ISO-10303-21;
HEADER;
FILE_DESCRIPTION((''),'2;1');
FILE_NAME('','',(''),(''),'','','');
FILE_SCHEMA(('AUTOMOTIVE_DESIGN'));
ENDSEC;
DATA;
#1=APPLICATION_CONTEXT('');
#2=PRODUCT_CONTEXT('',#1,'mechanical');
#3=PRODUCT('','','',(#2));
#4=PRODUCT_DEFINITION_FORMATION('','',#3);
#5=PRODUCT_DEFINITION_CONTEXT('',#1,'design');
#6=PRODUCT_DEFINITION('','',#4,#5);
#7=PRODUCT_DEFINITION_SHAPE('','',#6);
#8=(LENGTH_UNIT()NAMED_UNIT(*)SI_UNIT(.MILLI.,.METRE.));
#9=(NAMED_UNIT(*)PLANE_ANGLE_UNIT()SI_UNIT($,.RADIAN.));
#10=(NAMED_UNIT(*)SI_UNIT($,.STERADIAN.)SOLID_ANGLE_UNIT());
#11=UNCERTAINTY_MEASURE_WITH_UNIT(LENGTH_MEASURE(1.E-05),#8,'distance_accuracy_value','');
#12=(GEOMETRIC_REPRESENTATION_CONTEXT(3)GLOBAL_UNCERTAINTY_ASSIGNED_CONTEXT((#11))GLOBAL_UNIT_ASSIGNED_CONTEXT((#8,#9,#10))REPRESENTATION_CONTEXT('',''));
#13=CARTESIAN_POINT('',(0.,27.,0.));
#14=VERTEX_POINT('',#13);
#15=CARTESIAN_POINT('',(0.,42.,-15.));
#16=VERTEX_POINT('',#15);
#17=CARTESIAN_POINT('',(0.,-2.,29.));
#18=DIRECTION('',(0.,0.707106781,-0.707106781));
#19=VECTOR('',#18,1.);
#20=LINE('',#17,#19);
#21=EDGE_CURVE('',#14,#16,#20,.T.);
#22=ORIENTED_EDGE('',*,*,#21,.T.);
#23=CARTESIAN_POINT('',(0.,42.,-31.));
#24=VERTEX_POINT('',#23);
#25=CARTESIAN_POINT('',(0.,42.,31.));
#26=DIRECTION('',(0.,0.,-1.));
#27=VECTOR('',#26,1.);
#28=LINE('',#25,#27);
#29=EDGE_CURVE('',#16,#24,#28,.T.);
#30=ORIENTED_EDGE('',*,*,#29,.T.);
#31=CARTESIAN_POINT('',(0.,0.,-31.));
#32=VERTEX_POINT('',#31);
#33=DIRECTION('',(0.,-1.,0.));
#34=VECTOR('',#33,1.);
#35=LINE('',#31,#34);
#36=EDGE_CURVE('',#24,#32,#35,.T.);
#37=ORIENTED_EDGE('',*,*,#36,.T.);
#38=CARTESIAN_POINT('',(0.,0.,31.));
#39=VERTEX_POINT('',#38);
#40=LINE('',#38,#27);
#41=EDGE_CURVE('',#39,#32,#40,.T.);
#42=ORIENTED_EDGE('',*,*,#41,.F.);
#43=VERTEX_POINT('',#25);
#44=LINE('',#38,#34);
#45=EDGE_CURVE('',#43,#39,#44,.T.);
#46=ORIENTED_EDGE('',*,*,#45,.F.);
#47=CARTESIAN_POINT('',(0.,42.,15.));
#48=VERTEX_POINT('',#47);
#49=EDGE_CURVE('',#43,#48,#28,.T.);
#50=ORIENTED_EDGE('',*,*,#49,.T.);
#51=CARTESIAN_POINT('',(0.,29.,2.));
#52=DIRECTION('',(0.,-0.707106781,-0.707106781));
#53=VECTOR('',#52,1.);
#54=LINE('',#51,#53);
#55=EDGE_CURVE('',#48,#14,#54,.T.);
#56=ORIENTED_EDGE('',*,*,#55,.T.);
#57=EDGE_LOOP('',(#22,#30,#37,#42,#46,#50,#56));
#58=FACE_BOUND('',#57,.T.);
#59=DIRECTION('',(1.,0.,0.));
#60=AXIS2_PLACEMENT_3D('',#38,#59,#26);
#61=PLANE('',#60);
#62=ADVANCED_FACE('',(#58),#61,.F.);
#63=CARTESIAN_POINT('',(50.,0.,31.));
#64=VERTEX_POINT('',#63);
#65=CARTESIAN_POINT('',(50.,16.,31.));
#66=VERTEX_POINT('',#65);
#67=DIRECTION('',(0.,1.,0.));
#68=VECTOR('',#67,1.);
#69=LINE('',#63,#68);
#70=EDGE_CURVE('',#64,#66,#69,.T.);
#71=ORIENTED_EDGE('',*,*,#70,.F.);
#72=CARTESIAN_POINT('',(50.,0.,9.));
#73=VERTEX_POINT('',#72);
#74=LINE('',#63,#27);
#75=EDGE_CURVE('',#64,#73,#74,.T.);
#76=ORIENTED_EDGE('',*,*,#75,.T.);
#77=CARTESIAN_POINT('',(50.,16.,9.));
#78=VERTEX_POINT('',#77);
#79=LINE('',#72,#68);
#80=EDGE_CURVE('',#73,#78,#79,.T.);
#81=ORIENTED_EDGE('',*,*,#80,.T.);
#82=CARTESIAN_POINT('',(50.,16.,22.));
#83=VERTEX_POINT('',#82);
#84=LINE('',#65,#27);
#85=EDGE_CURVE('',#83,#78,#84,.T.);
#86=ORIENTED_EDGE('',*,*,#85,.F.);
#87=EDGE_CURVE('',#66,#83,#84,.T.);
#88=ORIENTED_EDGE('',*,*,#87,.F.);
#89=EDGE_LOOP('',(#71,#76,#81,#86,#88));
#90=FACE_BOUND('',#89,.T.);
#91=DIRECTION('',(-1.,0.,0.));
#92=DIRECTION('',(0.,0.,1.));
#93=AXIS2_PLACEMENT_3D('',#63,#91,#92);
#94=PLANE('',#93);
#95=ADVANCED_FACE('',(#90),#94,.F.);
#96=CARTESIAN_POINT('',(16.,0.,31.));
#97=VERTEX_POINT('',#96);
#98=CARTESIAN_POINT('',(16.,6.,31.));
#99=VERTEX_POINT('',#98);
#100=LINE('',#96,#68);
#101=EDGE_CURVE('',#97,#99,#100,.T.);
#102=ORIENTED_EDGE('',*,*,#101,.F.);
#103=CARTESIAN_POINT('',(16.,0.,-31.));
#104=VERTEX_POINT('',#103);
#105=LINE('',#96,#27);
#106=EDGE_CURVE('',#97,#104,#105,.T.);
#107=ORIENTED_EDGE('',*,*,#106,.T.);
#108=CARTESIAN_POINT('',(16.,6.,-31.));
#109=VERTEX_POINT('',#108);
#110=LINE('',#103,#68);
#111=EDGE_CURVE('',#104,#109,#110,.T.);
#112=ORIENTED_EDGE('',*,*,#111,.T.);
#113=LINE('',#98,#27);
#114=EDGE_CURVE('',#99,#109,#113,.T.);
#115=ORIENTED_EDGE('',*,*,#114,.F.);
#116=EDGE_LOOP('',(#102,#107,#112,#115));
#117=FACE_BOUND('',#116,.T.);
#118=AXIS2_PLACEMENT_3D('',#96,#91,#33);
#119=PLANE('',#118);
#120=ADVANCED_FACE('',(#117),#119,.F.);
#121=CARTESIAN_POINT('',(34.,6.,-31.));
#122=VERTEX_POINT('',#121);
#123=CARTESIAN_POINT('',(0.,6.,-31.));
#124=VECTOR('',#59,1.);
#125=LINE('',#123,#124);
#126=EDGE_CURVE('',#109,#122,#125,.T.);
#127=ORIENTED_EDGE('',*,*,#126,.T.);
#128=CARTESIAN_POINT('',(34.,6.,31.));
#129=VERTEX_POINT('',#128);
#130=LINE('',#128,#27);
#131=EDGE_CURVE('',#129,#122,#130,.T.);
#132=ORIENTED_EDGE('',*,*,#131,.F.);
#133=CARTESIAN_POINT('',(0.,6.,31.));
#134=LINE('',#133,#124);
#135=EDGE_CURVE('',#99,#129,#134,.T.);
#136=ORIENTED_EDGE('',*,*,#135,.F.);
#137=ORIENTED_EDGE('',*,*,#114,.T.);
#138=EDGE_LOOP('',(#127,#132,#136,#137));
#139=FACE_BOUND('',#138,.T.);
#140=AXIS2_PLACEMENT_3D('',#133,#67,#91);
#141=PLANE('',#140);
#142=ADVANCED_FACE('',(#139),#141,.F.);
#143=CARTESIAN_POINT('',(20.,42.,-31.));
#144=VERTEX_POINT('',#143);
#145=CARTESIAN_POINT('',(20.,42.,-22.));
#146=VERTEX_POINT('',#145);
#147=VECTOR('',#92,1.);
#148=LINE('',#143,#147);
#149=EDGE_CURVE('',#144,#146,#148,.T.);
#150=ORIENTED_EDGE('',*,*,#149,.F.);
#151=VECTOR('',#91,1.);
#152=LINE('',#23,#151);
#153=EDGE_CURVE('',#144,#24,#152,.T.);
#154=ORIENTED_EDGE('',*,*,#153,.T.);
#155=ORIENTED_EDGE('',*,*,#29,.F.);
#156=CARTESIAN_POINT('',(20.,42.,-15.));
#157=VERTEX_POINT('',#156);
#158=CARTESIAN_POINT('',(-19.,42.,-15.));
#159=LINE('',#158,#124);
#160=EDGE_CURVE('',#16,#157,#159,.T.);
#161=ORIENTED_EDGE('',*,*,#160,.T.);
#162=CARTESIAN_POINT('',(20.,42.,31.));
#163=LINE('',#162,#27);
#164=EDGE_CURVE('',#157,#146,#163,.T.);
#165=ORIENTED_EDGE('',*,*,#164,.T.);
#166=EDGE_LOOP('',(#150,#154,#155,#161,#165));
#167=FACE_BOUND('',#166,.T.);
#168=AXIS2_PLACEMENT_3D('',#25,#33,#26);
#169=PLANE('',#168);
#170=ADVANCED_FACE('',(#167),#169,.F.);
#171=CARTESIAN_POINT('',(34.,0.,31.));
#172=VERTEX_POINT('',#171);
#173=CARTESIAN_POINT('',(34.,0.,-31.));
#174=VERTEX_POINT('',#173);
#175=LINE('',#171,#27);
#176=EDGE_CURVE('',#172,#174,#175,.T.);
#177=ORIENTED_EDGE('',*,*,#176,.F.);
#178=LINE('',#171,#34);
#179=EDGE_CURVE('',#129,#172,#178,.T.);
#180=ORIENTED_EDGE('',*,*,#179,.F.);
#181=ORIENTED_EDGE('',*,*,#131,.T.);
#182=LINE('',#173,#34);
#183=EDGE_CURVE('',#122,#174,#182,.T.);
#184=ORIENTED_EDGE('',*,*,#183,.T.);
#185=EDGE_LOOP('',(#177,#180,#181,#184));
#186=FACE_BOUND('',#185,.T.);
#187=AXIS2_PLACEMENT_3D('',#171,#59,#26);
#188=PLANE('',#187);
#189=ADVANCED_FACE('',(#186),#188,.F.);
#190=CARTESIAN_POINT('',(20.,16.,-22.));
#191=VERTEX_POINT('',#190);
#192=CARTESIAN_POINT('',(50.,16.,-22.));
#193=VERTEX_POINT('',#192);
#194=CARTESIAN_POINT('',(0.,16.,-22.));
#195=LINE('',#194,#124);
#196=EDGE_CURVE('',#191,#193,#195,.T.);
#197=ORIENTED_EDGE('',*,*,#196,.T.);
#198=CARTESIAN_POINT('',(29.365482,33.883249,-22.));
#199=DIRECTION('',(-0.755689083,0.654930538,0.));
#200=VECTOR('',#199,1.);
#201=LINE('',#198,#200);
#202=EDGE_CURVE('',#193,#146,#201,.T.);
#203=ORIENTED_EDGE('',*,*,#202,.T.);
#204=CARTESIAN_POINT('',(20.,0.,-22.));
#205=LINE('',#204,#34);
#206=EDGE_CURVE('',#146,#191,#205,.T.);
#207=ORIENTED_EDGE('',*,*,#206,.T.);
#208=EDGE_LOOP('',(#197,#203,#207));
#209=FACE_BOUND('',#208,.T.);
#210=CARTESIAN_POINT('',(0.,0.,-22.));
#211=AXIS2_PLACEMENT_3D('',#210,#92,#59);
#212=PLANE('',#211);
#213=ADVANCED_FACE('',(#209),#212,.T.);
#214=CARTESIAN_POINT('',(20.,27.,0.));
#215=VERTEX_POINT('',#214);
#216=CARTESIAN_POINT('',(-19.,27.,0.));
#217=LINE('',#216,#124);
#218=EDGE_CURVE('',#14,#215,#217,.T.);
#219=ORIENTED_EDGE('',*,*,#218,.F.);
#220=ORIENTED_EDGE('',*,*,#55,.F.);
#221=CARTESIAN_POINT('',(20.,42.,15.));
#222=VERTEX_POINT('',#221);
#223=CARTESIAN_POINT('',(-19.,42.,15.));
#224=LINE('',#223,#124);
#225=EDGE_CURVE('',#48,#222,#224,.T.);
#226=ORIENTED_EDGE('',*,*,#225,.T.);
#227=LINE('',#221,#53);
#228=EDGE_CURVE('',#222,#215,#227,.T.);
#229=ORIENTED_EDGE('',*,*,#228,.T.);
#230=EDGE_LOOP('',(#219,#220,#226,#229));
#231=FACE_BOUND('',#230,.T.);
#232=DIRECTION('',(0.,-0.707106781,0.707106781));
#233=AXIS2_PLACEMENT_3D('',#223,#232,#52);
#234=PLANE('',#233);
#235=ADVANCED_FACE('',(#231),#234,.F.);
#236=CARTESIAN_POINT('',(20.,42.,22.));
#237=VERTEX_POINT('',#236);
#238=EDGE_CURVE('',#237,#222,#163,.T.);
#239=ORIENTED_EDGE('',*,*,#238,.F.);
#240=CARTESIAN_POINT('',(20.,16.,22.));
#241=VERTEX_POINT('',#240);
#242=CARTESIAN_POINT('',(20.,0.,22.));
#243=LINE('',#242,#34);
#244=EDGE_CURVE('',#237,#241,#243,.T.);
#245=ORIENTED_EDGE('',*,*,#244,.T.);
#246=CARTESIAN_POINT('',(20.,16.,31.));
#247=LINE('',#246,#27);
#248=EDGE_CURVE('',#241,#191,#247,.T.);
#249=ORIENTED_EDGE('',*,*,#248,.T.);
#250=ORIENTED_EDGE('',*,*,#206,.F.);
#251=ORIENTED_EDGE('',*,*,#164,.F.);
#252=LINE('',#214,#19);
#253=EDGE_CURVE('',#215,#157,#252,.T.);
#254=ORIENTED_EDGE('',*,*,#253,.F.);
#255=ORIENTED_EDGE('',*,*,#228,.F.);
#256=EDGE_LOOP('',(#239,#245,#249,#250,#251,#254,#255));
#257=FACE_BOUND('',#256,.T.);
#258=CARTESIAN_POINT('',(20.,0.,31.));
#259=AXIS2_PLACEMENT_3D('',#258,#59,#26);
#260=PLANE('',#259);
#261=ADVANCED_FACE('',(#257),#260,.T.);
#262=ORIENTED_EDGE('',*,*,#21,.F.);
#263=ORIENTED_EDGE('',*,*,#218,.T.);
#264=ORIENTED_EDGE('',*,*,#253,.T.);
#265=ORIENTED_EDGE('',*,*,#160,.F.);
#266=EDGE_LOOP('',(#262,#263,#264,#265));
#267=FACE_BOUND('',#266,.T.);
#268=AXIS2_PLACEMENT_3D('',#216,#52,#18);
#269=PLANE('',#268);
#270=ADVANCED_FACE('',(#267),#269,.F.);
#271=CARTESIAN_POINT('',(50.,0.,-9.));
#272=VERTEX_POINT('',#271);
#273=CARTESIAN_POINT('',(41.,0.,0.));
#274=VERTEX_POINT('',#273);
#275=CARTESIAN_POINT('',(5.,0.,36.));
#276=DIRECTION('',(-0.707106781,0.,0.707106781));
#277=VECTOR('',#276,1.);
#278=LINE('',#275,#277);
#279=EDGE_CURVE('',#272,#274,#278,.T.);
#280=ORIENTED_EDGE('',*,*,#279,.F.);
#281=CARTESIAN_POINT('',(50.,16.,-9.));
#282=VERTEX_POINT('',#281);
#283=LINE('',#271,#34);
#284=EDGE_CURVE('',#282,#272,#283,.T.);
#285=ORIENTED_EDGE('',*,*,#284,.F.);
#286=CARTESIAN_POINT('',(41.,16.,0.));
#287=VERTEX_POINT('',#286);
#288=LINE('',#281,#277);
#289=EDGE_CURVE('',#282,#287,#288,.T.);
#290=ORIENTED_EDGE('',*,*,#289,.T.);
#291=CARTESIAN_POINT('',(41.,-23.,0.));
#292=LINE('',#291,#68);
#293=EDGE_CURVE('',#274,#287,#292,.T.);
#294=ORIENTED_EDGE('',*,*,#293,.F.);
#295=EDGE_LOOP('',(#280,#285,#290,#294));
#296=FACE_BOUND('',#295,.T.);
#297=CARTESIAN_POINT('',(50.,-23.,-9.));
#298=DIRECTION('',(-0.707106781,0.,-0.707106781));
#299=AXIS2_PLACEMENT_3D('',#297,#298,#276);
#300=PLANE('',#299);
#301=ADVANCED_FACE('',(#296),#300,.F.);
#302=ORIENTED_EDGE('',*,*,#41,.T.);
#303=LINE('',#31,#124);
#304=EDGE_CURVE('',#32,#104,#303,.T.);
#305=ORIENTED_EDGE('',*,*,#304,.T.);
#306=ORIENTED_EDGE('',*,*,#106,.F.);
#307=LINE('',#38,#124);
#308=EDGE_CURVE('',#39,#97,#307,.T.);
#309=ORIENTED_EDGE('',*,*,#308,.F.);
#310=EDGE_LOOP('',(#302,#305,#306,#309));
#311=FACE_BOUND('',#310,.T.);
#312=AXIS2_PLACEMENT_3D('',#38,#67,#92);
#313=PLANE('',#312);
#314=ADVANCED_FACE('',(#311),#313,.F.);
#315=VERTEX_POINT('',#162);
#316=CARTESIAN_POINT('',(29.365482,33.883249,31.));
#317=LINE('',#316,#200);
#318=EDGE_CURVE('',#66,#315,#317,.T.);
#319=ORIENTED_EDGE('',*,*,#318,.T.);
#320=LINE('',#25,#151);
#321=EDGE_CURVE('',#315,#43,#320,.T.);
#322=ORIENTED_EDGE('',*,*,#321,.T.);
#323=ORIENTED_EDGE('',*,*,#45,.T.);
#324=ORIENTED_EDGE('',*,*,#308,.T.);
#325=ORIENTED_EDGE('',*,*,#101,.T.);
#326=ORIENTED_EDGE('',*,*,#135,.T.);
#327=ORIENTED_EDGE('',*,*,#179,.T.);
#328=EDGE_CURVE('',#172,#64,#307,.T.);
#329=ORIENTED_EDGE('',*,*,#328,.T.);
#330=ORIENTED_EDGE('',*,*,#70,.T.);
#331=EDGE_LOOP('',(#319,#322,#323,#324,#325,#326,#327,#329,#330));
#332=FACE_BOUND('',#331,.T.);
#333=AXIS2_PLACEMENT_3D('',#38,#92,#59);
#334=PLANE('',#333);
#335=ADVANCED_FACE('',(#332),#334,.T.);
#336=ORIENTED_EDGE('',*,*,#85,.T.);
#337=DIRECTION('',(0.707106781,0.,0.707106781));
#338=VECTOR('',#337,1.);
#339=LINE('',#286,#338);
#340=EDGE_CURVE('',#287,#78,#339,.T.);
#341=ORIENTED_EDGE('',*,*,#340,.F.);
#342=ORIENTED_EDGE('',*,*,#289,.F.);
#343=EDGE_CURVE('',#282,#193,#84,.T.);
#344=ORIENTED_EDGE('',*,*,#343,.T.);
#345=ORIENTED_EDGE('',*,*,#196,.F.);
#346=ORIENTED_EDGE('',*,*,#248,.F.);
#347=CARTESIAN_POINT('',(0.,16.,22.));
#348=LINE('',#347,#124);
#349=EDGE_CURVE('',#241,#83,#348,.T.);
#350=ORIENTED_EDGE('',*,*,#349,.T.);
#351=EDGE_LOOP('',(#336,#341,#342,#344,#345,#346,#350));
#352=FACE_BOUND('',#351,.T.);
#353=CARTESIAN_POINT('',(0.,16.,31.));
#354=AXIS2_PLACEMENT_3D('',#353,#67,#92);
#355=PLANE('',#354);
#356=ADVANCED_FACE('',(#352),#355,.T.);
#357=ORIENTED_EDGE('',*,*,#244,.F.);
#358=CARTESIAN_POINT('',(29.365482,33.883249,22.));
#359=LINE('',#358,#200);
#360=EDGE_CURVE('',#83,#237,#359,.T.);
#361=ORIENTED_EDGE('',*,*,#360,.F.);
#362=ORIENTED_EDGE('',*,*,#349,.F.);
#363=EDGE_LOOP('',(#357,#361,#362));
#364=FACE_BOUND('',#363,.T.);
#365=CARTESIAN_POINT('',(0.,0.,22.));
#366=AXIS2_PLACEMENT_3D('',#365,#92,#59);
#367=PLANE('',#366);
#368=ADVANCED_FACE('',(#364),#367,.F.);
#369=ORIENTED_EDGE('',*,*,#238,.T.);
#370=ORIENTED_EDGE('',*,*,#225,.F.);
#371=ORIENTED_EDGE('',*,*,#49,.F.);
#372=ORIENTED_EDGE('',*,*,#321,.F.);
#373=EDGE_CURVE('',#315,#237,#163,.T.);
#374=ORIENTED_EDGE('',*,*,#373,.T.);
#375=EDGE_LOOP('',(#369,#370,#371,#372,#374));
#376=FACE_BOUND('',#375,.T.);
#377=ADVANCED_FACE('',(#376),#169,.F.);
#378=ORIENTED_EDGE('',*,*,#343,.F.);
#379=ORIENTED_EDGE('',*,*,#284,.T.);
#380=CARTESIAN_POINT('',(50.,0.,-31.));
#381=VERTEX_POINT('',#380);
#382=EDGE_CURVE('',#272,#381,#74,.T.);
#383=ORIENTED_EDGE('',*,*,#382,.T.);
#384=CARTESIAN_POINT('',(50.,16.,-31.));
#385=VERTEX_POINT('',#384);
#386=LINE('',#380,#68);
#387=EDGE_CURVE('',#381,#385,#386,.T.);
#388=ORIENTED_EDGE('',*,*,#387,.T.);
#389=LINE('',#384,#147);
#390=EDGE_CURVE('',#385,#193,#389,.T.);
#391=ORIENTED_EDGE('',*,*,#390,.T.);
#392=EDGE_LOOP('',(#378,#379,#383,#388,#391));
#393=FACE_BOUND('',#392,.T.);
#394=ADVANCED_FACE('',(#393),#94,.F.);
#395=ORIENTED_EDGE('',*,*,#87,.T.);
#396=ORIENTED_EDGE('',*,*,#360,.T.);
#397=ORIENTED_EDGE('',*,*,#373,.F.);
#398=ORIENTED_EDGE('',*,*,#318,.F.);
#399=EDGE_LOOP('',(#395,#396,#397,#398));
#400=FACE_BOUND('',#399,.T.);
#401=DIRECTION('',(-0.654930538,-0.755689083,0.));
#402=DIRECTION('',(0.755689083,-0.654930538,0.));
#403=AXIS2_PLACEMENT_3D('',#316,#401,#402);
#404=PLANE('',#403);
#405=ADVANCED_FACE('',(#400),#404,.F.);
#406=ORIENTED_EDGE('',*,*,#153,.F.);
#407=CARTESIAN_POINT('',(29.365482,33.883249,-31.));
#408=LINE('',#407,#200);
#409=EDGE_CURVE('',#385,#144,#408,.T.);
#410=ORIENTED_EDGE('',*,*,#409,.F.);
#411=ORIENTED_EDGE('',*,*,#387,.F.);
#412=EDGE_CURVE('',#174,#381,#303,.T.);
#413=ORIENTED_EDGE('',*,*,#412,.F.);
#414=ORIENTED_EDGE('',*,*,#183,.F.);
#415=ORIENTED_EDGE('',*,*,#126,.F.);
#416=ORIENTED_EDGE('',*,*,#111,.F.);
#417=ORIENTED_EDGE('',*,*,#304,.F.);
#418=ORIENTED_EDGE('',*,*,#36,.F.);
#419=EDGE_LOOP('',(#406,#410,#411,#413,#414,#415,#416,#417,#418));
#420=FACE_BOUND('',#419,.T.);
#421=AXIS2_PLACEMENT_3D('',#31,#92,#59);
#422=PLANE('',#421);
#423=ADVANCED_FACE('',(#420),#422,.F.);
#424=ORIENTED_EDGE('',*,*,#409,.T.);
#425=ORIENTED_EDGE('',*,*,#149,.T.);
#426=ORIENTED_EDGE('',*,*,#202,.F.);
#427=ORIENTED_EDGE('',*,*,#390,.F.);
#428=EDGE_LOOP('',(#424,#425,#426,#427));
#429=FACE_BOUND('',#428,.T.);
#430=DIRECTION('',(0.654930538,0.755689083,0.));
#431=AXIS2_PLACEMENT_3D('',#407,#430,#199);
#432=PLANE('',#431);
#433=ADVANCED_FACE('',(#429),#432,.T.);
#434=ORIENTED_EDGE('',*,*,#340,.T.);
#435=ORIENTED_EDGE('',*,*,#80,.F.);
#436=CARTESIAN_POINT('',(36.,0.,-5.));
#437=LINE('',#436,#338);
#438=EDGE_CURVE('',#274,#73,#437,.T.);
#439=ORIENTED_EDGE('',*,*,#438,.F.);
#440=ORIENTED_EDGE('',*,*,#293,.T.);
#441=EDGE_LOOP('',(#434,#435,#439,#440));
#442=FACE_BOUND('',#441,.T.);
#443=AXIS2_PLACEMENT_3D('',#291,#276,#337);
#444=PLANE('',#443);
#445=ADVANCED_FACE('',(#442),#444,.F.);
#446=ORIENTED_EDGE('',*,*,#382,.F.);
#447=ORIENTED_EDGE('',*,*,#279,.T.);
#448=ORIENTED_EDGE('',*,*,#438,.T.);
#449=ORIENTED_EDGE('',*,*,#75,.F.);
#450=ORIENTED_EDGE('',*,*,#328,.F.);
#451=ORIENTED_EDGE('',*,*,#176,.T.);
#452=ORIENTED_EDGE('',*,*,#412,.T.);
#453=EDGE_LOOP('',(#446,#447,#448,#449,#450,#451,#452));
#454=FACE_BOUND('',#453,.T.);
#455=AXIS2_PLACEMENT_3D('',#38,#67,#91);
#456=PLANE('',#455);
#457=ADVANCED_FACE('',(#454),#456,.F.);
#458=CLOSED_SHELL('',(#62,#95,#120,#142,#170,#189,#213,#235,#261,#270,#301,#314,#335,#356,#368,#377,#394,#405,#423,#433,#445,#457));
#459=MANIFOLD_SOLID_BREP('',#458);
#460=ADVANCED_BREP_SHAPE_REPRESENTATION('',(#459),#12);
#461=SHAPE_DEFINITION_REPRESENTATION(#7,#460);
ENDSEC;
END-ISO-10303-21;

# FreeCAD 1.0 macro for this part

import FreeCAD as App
import Part
import Sketcher
from FreeCAD import Vector


def add_polygon(sketch, points):
    """Adds a closed chain of lines whose ends are joined by coincident constraints."""
    first, n = sketch.GeometryCount, len(points)
    for a, b in zip(points, points[1:] + points[:1]):
        sketch.addGeometry(Part.LineSegment(App.Vector(*a, 0), App.Vector(*b, 0)), False)
    for i in range(n):
        sketch.addConstraint(Sketcher.Constraint("Coincident", first + i, 2, first + (i + 1) % n, 1))

doc = App.newDocument("Part")
body = doc.addObject("PartDesign::Body", "Body")

# Sketch on XY plane
sketch1 = body.newObject("Sketcher::SketchObject", "Sketch")
sketch1.AttachmentSupport = (doc.getObject("XY_Plane"), [""])
sketch1.MapMode = "FlatFace"
add_polygon(sketch1, [(50, 16), (20, 16), (20, 42), (0, 42), (0, 0), (16, 0), (16, 6), (34, 6), (34, 0), (50, 0)])  # lines 0-9
sketch1.addConstraint([
    Sketcher.Constraint("Horizontal", 0),
    Sketcher.Constraint("Vertical", 1),
    Sketcher.Constraint("Horizontal", 2),
    Sketcher.Constraint("Vertical", 3),
    Sketcher.Constraint("Horizontal", 4),
    Sketcher.Constraint("Vertical", 5),
    Sketcher.Constraint("Horizontal", 6),
    Sketcher.Constraint("Vertical", 7),
    Sketcher.Constraint("Horizontal", 8),
    Sketcher.Constraint("Vertical", 9),
    Sketcher.Constraint("Coincident", 3, 2, -1, 1),
    Sketcher.Constraint("PointOnObject", 7, 2, -1),
    Sketcher.Constraint("Equal", 4, 8),
    Sketcher.Constraint("Equal", 8, 9),
    Sketcher.Constraint("DistanceX", 0, 2, 0, 1, 30.0),
    Sketcher.Constraint("DistanceX", 2, 2, 2, 1, 20.0),
    Sketcher.Constraint("DistanceX", 4, 1, 4, 2, 16.0),
    Sketcher.Constraint("DistanceY", 1, 1, 1, 2, 26.0),
    Sketcher.Constraint("DistanceY", 5, 1, 5, 2, 6.0),
])
pad1 = body.newObject("PartDesign::Pad", "Pad")
pad1.Profile = sketch1
pad1.Length = 62
pad1.Midplane = True

# Sketch on XY plane
sketch2 = body.newObject("Sketcher::SketchObject", "Sketch001")
sketch2.AttachmentSupport = (doc.getObject("XY_Plane"), [""])
sketch2.MapMode = "FlatFace"
sketch2.AttachmentOffset = App.Placement(Vector(0, 0, 22), App.Rotation())
add_polygon(sketch2, [(20, 42), (20, 16), (50, 16)])  # lines 0-2
sketch2.addConstraint([
    Sketcher.Constraint("Vertical", 0),
    Sketcher.Constraint("Horizontal", 1),
    Sketcher.Constraint("DistanceX", 1, 1, 1, 2, 30.0),
    Sketcher.Constraint("DistanceY", 0, 2, 0, 1, 26.0),
    Sketcher.Constraint("DistanceX", -1, 1, 0, 2, 20.0),
    Sketcher.Constraint("DistanceY", -1, 1, 0, 2, 16.0),
])
pad2 = body.newObject("PartDesign::Pad", "Pad001")
pad2.Profile = sketch2
pad2.Length = 9

# Sketch on XY plane
sketch3 = body.newObject("Sketcher::SketchObject", "Sketch002")
sketch3.AttachmentSupport = (doc.getObject("XY_Plane"), [""])
sketch3.MapMode = "FlatFace"
sketch3.AttachmentOffset = App.Placement(Vector(0, 0, -22), App.Rotation())
add_polygon(sketch3, [(20, 42), (20, 16), (50, 16)])  # lines 0-2
sketch3.addConstraint([
    Sketcher.Constraint("Vertical", 0),
    Sketcher.Constraint("Horizontal", 1),
    Sketcher.Constraint("DistanceX", 1, 1, 1, 2, 30.0),
    Sketcher.Constraint("DistanceY", 0, 2, 0, 1, 26.0),
    Sketcher.Constraint("DistanceX", -1, 1, 0, 2, 20.0),
    Sketcher.Constraint("DistanceY", -1, 1, 0, 2, 16.0),
])
pad3 = body.newObject("PartDesign::Pad", "Pad002")
pad3.Profile = sketch3
pad3.Length = 9
pad3.Reversed = True

# Sketch on YZ plane
sketch4 = body.newObject("Sketcher::SketchObject", "Sketch003")
sketch4.AttachmentSupport = (doc.getObject("YZ_Plane"), [""])
sketch4.MapMode = "FlatFace"
sketch4.AttachmentOffset = App.Placement(Vector(0, 0, 20), App.Rotation())
add_polygon(sketch4, [(42, 15), (27, 0), (42, -15)])  # lines 0-2
sketch4.addConstraint([
    Sketcher.Constraint("Vertical", 2),
    Sketcher.Constraint("PointOnObject", 0, 2, -1),
    Sketcher.Constraint("Perpendicular", 0, 1),
    Sketcher.Constraint("Equal", 0, 1),
    Sketcher.Constraint("DistanceY", 2, 1, 2, 2, 30.0),
    Sketcher.Constraint("DistanceX", -1, 1, 0, 2, 27.0),
])
pocket1 = body.newObject("PartDesign::Pocket", "Pocket")
pocket1.Profile = sketch4
pocket1.Length = 39

# Sketch on XZ plane
sketch5 = body.newObject("Sketcher::SketchObject", "Sketch004")
sketch5.AttachmentSupport = (doc.getObject("XZ_Plane"), [""])
sketch5.MapMode = "FlatFace"
sketch5.AttachmentOffset = App.Placement(Vector(0, 0, -16), App.Rotation())
add_polygon(sketch5, [(50, -9), (41, 0), (50, 9)])  # lines 0-2
sketch5.addConstraint([
    Sketcher.Constraint("Vertical", 2),
    Sketcher.Constraint("PointOnObject", 0, 2, -1),
    Sketcher.Constraint("Perpendicular", 0, 1),
    Sketcher.Constraint("Equal", 0, 1),
    Sketcher.Constraint("DistanceY", 2, 2, 2, 1, 18.0),
    Sketcher.Constraint("DistanceX", -1, 1, 0, 2, 41.0),
])
pocket2 = body.newObject("PartDesign::Pocket", "Pocket001")
pocket2.Profile = sketch5
pocket2.Length = 39
pocket2.Reversed = True

doc.recompute()
